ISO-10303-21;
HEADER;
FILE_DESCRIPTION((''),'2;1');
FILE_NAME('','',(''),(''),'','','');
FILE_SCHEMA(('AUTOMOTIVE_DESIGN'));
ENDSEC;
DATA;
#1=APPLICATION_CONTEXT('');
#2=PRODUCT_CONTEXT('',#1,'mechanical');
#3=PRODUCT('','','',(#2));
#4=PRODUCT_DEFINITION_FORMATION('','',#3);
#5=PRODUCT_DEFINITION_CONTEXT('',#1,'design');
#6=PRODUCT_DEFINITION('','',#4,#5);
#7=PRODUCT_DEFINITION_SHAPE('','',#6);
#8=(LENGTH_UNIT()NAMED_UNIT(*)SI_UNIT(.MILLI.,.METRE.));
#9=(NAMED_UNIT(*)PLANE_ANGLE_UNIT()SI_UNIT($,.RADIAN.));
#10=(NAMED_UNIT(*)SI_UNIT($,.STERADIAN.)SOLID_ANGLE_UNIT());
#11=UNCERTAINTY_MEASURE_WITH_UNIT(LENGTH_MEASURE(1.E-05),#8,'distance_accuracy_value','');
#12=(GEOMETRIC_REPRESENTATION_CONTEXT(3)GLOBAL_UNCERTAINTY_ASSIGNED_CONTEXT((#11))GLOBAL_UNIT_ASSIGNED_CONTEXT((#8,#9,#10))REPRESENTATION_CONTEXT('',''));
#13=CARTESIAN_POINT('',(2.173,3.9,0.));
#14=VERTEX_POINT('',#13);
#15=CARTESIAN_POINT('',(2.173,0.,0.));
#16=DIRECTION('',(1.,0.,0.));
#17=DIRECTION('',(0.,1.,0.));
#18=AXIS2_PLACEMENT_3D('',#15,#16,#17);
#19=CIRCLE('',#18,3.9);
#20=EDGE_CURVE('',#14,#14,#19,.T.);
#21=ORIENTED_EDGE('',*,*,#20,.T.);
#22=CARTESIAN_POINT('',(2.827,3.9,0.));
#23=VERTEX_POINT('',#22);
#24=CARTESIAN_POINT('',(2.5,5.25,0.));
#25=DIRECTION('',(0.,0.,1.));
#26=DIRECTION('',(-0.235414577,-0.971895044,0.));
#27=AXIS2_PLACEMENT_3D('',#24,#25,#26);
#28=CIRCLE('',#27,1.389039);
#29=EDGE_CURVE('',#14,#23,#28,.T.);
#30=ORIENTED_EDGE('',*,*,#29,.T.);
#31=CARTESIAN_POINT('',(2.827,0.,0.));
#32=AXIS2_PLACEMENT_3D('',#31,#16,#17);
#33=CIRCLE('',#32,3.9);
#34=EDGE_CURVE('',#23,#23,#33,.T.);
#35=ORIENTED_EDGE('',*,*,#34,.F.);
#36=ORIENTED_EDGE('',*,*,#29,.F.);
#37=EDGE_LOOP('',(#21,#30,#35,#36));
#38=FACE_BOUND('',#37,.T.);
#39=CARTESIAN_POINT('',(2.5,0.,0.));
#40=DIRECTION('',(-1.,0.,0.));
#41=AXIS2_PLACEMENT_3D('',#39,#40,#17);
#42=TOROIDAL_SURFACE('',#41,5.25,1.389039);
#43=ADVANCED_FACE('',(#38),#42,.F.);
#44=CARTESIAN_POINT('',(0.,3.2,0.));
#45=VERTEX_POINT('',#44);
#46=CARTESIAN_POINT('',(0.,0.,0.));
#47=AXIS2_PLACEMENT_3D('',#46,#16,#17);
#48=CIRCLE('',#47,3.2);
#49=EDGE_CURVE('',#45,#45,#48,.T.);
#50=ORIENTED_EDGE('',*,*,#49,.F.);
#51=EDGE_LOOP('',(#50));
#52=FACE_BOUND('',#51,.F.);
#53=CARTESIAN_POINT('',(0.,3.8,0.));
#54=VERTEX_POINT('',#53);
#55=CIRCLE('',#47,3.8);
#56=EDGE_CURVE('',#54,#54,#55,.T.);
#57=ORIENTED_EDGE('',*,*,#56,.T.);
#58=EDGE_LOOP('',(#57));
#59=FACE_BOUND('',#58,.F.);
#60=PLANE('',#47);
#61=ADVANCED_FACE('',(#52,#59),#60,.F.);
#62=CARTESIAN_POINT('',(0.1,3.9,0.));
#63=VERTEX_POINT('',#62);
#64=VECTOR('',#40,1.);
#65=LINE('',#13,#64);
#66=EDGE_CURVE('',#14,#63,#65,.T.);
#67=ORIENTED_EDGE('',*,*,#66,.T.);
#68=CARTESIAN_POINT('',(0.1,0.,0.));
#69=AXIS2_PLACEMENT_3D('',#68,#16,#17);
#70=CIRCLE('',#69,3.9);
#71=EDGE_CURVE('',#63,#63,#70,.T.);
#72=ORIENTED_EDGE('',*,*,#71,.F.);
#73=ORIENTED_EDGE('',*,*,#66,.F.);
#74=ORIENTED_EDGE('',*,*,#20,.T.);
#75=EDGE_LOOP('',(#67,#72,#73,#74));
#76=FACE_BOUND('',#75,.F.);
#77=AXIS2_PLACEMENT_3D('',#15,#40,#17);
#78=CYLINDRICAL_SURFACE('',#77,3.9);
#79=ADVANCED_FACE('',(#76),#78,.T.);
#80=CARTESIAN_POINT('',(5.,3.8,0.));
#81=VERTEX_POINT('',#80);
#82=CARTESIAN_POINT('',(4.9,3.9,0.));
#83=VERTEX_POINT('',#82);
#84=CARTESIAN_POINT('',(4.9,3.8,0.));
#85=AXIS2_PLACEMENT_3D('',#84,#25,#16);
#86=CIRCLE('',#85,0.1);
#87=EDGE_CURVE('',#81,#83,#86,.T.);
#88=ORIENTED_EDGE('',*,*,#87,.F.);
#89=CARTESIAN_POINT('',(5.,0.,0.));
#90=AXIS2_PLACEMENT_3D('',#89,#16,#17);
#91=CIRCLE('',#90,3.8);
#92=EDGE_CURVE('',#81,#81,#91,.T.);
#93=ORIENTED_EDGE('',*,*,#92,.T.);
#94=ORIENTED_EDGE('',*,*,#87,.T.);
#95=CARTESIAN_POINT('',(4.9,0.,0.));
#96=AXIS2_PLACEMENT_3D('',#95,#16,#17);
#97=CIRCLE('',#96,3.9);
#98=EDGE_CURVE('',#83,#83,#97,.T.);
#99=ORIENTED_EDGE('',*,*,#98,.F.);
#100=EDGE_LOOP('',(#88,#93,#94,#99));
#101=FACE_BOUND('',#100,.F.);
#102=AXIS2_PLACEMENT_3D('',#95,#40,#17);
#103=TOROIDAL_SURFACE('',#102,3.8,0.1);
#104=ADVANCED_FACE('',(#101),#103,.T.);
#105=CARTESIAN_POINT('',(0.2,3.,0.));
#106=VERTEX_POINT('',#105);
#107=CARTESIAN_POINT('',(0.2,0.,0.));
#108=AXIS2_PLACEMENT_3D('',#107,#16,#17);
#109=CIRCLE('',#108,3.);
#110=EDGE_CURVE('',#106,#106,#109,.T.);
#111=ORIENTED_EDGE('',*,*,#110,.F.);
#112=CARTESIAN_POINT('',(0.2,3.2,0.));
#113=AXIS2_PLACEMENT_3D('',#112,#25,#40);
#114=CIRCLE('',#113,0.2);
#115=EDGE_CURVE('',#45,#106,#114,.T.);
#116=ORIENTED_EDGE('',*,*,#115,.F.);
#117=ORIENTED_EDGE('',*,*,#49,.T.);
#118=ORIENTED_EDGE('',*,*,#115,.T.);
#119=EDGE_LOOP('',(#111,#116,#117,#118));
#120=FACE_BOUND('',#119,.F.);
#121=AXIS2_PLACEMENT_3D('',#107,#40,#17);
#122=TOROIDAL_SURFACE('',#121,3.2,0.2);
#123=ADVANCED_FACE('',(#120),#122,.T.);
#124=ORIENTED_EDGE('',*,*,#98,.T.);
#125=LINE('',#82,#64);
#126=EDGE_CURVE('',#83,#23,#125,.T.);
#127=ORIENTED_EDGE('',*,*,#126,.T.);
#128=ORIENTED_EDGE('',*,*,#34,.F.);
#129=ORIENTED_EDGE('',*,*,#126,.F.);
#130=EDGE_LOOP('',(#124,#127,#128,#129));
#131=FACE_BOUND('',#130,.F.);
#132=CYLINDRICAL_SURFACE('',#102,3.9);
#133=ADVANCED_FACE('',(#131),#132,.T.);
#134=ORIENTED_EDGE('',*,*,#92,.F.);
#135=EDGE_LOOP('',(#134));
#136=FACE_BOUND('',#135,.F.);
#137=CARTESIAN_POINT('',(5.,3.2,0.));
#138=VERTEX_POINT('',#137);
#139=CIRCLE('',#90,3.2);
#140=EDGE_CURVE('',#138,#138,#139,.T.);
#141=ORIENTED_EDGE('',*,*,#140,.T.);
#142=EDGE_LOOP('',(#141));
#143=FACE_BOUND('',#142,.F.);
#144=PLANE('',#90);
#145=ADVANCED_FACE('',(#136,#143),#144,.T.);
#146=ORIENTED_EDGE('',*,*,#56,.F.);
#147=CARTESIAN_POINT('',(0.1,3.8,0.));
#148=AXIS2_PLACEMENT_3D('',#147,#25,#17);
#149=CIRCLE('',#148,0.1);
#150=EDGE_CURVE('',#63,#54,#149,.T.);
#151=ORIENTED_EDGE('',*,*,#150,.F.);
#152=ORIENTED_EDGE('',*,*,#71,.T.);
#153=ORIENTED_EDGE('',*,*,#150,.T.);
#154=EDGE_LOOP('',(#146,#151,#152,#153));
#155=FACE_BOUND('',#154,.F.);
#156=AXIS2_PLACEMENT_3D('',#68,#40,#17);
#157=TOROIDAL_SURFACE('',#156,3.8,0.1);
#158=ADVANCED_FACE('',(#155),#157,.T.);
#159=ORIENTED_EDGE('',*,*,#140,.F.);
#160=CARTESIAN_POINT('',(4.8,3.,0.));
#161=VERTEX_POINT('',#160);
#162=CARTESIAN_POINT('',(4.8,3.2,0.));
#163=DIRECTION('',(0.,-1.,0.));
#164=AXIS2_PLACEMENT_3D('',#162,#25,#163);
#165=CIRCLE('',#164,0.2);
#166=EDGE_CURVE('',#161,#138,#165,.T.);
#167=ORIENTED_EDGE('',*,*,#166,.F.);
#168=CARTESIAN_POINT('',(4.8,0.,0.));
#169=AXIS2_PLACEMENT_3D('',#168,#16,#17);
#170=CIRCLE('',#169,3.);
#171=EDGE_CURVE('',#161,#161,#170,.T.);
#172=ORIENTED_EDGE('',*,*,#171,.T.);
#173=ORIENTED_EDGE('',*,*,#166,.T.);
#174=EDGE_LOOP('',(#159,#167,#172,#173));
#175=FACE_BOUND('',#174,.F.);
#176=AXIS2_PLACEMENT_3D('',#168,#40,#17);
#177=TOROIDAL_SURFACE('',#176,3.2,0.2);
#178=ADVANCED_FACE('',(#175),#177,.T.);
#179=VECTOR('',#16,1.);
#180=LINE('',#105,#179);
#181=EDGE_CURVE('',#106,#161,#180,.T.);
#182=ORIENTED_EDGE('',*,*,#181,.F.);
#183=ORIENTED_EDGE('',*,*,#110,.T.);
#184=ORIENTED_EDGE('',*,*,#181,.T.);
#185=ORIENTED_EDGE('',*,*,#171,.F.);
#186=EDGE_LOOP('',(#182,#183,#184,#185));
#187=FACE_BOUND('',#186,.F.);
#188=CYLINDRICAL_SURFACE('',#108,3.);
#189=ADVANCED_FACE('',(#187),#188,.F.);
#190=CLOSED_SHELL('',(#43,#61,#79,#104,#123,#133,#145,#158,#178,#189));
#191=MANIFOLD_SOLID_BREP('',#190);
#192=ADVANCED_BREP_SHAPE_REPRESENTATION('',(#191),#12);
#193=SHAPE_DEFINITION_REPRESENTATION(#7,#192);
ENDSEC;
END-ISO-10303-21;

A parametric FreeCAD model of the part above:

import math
import FreeCAD as App
import Part
import Sketcher
Q = App.Units.Quantity

doc = App.newDocument("Part")
body = doc.addObject("PartDesign::Body", "Body")

# Sketch on XY plane
sketch1 = body.newObject("Sketcher::SketchObject", "Sketch")
sketch1.AttachmentSupport = (doc.getObject("XY_Plane"), [""])
sketch1.MapMode = "FlatFace"
sketch1.addGeometry([
    Part.ArcOfCircle(Part.Circle(App.Vector(0.1, 3.8, 0), App.Vector(0, 0, 1), 0.1), math.radians(90), math.radians(180)),  # 0
    Part.LineSegment(App.Vector(0, 3.8, 0), App.Vector(0, 3.2, 0)),  # 1
    Part.ArcOfCircle(Part.Circle(App.Vector(0.2, 3.2, 0), App.Vector(0, 0, 1), 0.2), math.radians(180), math.radians(270)),  # 2
    Part.LineSegment(App.Vector(0.2, 3, 0), App.Vector(4.8, 3, 0)),  # 3
    Part.ArcOfCircle(Part.Circle(App.Vector(4.8, 3.2, 0), App.Vector(0, 0, 1), 0.2), math.radians(-90), math.radians(0)),  # 4
    Part.LineSegment(App.Vector(5, 3.2, 0), App.Vector(5, 3.8, 0)),  # 5
    Part.ArcOfCircle(Part.Circle(App.Vector(4.9, 3.8, 0), App.Vector(0, 0, 1), 0.1), math.radians(0), math.radians(90)),  # 6
    Part.LineSegment(App.Vector(4.9, 3.9, 0), App.Vector(2.83, 3.9, 0)),  # 7
    Part.ArcOfCircle(Part.Circle(App.Vector(2.5, 5.25, 0), App.Vector(0, 0, 1), 1.39), math.radians(-104), math.radians(-76)),  # 8
    Part.LineSegment(App.Vector(2.17, 3.9, 0), App.Vector(0.1, 3.9, 0)),  # 9
], False)
sketch1.addConstraint([
    Sketcher.Constraint("Tangent", 0, 2, 1, 1),
    Sketcher.Constraint("Tangent", 1, 2, 2, 1),
    Sketcher.Constraint("Tangent", 2, 2, 3, 1),
    Sketcher.Constraint("Tangent", 3, 2, 4, 1),
    Sketcher.Constraint("Tangent", 4, 2, 5, 1),
    Sketcher.Constraint("Tangent", 5, 2, 6, 1),
    Sketcher.Constraint("Tangent", 6, 2, 7, 1),
    Sketcher.Constraint("Coincident", 7, 2, 8, 2),
    Sketcher.Constraint("Coincident", 8, 1, 9, 1),
    Sketcher.Constraint("Tangent", 9, 2, 0, 1),
    Sketcher.Constraint("Vertical", 1),
    Sketcher.Constraint("Horizontal", 3),
    Sketcher.Constraint("Vertical", 5),
    Sketcher.Constraint("Horizontal", 7),
    Sketcher.Constraint("Horizontal", 9),
    Sketcher.Constraint("Equal", 2, 4),
    Sketcher.Constraint("Equal", 0, 6),
    Sketcher.Constraint("PointOnObject", 0, 2, -2),
    Sketcher.Constraint("Horizontal", 0, 3, 6, 3),
    Sketcher.Constraint("Equal", 7, 9),
    Sketcher.Constraint("Radius", 0, Q("0.1 mm")),
    Sketcher.Constraint("Radius", 2, Q("0.2 mm")),
    Sketcher.Constraint("DistanceX", 3, 1, 3, 2, Q("4.6 mm")),
    Sketcher.Constraint("DistanceY", 1, 2, 1, 1, Q("0.6 mm")),
    Sketcher.Constraint("DistanceY", -1, 1, 2, 2, Q("3 mm")),
    Sketcher.Constraint("Radius", 8, Q("1.389 mm")),
    Sketcher.Constraint("DistanceX", 7, 2, 7, 1, Q("2.073 mm")),
])
revolution = body.newObject("PartDesign::Revolution", "Revolution")
revolution.Profile = sketch1
revolution.ReferenceAxis = (sketch1, ["H_Axis"])
revolution.Angle = 360

doc.recompute()
